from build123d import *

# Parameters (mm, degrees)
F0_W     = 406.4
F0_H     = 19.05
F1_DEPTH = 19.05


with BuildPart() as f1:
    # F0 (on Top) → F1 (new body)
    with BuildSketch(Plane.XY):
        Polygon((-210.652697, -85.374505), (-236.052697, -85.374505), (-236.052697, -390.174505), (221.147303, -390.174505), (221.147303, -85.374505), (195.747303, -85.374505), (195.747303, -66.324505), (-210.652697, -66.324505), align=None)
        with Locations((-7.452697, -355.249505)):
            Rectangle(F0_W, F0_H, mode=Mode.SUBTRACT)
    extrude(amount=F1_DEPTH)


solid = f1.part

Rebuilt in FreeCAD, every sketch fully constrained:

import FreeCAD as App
import Part
import Sketcher
Q = App.Units.Quantity

doc = App.newDocument("Part")
body = doc.addObject("PartDesign::Body", "Body")

sketch1 = doc.addObject("Sketcher::SketchObject", "Sketch")
body.addObject(sketch1)
sketch1.AttachmentSupport = (doc.XY_Plane, [""])
sketch1.MapMode = "FlatFace"
sketch1.addGeometry([
    Part.LineSegment(App.Vector(-210.652697, -85.374505, 0), App.Vector(-236.052697, -85.374505, 0)),
    Part.LineSegment(App.Vector(-236.052697, -85.374505, 0), App.Vector(-236.052697, -390.174505, 0)),
    Part.LineSegment(App.Vector(-236.052697, -390.174505, 0), App.Vector(221.147303, -390.174505, 0)),
    Part.LineSegment(App.Vector(221.147303, -390.174505, 0), App.Vector(221.147303, -85.374505, 0)),
    Part.LineSegment(App.Vector(221.147303, -85.374505, 0), App.Vector(195.747303, -85.374505, 0)),
    Part.LineSegment(App.Vector(195.747303, -85.374505, 0), App.Vector(195.747303, -66.324505, 0)),
    Part.LineSegment(App.Vector(195.747303, -66.324505, 0), App.Vector(-210.652697, -66.324505, 0)),
    Part.LineSegment(App.Vector(-210.652697, -66.324505, 0), App.Vector(-210.652697, -85.374505, 0)),
    Part.LineSegment(App.Vector(195.747303, -364.774505, 0), App.Vector(-210.652697, -364.774505, 0)),
    Part.LineSegment(App.Vector(-210.652697, -364.774505, 0), App.Vector(-210.652697, -345.724505, 0)),
    Part.LineSegment(App.Vector(-210.652697, -345.724505, 0), App.Vector(195.747303, -345.724505, 0)),
    Part.LineSegment(App.Vector(195.747303, -345.724505, 0), App.Vector(195.747303, -364.774505, 0)),
], False)
sketch1.addConstraint([
    Sketcher.Constraint("Coincident", 0, 2, 1, 1),
    Sketcher.Constraint("Coincident", 1, 2, 2, 1),
    Sketcher.Constraint("Coincident", 2, 2, 3, 1),
    Sketcher.Constraint("Coincident", 3, 2, 4, 1),
    Sketcher.Constraint("Coincident", 4, 2, 5, 1),
    Sketcher.Constraint("Coincident", 5, 2, 6, 1),
    Sketcher.Constraint("Coincident", 6, 2, 7, 1),
    Sketcher.Constraint("Coincident", 7, 2, 0, 1),
    Sketcher.Constraint("Coincident", 8, 2, 9, 1),
    Sketcher.Constraint("Coincident", 9, 2, 10, 1),
    Sketcher.Constraint("Coincident", 10, 2, 11, 1),
    Sketcher.Constraint("Coincident", 11, 2, 8, 1),
    Sketcher.Constraint("Horizontal", 0),
    Sketcher.Constraint("Vertical", 1),
    Sketcher.Constraint("Horizontal", 2),
    Sketcher.Constraint("Vertical", 3),
    Sketcher.Constraint("Horizontal", 4),
    Sketcher.Constraint("Vertical", 5),
    Sketcher.Constraint("Horizontal", 6),
    Sketcher.Constraint("Vertical", 7),
    Sketcher.Constraint("Horizontal", 8),
    Sketcher.Constraint("Vertical", 9),
    Sketcher.Constraint("Horizontal", 10),
    Sketcher.Constraint("Vertical", 11),
    Sketcher.Constraint("Horizontal", 0, 2, 3, 2),
    Sketcher.Constraint("Vertical", 7, 2, 8, 2),
    Sketcher.Constraint("Vertical", 5, 2, 10, 2),
    Sketcher.Constraint("Equal", 0, 4),
    Sketcher.Constraint("Equal", 7, 9),
    Sketcher.Constraint("DistanceX", 0, 2, 0, 1, Q("1 in")),
    Sketcher.Constraint("DistanceX", 2, 1, 2, 2, Q("18 in")),
    Sketcher.Constraint("DistanceY", 1, 2, 1, 1, Q("12 in")),
    Sketcher.Constraint("DistanceY", 1, 2, 8, 2, Q("1 in")),
    Sketcher.Constraint("DistanceY", 5, 1, 5, 2, Q("0.75 in")),
    Sketcher.Constraint("DistanceX", 0, 2, -1, 1, 236.052697),
    Sketcher.Constraint("DistanceY", 0, 2, -1, 1, 85.374505),
])
pad1 = doc.addObject("PartDesign::Pad", "Pad")
body.addObject(pad1)
pad1.Profile = sketch1
pad1.Length = Q("0.75 in")

doc.recompute()
